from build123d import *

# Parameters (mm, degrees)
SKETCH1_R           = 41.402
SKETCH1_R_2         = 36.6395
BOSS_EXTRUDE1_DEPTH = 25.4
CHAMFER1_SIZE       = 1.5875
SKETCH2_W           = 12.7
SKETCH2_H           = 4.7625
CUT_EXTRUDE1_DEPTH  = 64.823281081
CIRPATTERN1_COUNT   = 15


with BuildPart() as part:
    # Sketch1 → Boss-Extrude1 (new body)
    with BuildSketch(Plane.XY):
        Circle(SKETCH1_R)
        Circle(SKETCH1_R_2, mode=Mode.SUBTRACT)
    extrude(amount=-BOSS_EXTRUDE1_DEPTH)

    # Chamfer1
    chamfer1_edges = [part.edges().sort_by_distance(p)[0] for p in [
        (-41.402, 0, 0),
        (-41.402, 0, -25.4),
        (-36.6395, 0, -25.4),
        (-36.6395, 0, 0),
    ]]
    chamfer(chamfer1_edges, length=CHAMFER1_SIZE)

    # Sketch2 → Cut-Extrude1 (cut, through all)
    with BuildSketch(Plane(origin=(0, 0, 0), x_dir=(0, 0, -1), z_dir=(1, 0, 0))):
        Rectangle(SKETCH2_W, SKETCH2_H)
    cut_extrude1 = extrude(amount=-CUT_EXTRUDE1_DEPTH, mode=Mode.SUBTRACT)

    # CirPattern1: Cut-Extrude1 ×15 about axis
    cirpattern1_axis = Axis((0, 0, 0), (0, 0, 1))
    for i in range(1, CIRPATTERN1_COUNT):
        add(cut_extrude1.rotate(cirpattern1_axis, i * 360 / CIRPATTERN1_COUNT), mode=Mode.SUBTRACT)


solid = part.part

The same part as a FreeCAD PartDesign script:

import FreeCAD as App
import Part
import Sketcher
Q = App.Units.Quantity


def edges_at(feature, points):
    """Names of the edges that pass closest to the given points."""
    edges = feature.Shape.Edges
    near = lambda p: min(range(len(edges)), key=lambda i: edges[i].distToShape(Part.Vertex(*p))[0])
    return sorted({f"Edge{near(p) + 1}" for p in points})

doc = App.newDocument("Part")
body = doc.addObject("PartDesign::Body", "Body")

# Sketch on XY plane
sketch1 = body.newObject("Sketcher::SketchObject", "Sketch")
sketch1.AttachmentSupport = (doc.getObject("XY_Plane"), [""])
sketch1.MapMode = "FlatFace"
sketch1.addGeometry([
    Part.Circle(App.Vector(0, 0, 0), App.Vector(0, 0, 1), 41),
    Part.Circle(App.Vector(0, 0, 0), App.Vector(0, 0, 1), 37),
], False)
sketch1.addConstraint([
    Sketcher.Constraint("Coincident", 0, 3, -1, 1),
    Sketcher.Constraint("Coincident", 1, 3, -1, 1),
    Sketcher.Constraint("Diameter", 0, Q("3.26 in")),
    Sketcher.Constraint("Diameter", 1, Q("2.885 in")),
])
pad1 = body.newObject("PartDesign::Pad", "Pad")
pad1.Profile = sketch1
pad1.Length = Q("1 in")
pad1.Reversed = True
doc.recompute()

chamfer = body.newObject("PartDesign::Chamfer", "Chamfer")
chamfer.Base = (pad1, edges_at(pad1, [
    (-41.402, 0, 0),
    (-41.402, 0, -25.4),
    (-36.639, 0, -25.4),
    (-36.639, 0, 0),
]))
chamfer.Size = Q("0.0625 in")

# Sketch on YZ plane
sketch2 = body.newObject("Sketcher::SketchObject", "Sketch001")
sketch2.AttachmentSupport = (doc.getObject("YZ_Plane"), [""])
sketch2.MapMode = "FlatFace"
sketch2.addGeometry([
    Part.LineSegment(App.Vector(2.4, 6.3, 0), App.Vector(-2.4, 6.3, 0)),
    Part.LineSegment(App.Vector(-2.4, 6.3, 0), App.Vector(-2.4, -6.3, 0)),
    Part.LineSegment(App.Vector(-2.4, -6.3, 0), App.Vector(2.4, -6.3, 0)),
    Part.LineSegment(App.Vector(2.4, -6.3, 0), App.Vector(2.4, 6.3, 0)),
], False)
sketch2.addConstraint([
    Sketcher.Constraint("Coincident", 0, 2, 1, 1),
    Sketcher.Constraint("Coincident", 1, 2, 2, 1),
    Sketcher.Constraint("Coincident", 2, 2, 3, 1),
    Sketcher.Constraint("Coincident", 3, 2, 0, 1),
    Sketcher.Constraint("Horizontal", 0),
    Sketcher.Constraint("Vertical", 1),
    Sketcher.Constraint("Horizontal", 2),
    Sketcher.Constraint("Vertical", 3),
    Sketcher.Constraint("Symmetric", 0, 2, 2, 2, -1, 1),
    Sketcher.Constraint("DistanceY", 1, 2, 1, 1, Q("0.5 in")),
    Sketcher.Constraint("DistanceX", 0, 2, 0, 1, Q("0.1875 in")),
])
pocket1 = body.newObject("PartDesign::Pocket", "Pocket")
pocket1.Profile = sketch2
pocket1.Type = "ThroughAll"
doc.recompute()

polarpattern = body.newObject("PartDesign::PolarPattern", "PolarPattern")
polarpattern.Originals = [pocket1]
polarpattern.Axis = (doc.getObject("Z_Axis"), [""])
polarpattern.Angle = 360
polarpattern.Occurrences = 15
body.Tip = polarpattern

doc.recompute()
